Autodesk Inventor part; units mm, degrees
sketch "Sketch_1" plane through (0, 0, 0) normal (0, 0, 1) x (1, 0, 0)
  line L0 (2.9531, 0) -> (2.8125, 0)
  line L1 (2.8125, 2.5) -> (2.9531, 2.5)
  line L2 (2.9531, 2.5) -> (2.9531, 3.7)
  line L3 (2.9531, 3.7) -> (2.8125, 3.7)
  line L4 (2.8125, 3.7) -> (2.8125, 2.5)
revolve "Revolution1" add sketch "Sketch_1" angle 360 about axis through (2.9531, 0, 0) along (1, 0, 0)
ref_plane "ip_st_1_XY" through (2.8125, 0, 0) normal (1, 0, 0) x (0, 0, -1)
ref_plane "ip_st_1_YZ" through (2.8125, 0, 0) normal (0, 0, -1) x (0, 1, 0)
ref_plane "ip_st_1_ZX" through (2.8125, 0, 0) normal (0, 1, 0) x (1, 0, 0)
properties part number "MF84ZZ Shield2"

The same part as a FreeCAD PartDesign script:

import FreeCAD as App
import Part
import Sketcher
Q = App.Units.Quantity

doc = App.newDocument("Part")
params = doc.addObject("Spreadsheet::Sheet", "Params")
for row, (alias, value) in enumerate([
    ("sketch1_height", "1.2 mm"),
    ("revolution_angle", "360 deg"),
], start=1):
    params.set(f"A{row}", alias)
    params.set(f"B{row}", "=" + value)
    params.setAlias(f"B{row}", alias)

body = doc.addObject("PartDesign::Body", "Body")

sketch1 = body.newObject("Sketcher::SketchObject", "Sketch")
sketch1.AttachmentSupport = (doc.getObject("XY_Plane"), [""])
sketch1.MapMode = "FlatFace"
sketch1.addGeometry(Part.LineSegment(App.Vector(2.81, 3.7, 0), App.Vector(2.81, 2.5, 0)), False)
sketch1.addGeometry(Part.LineSegment(App.Vector(2.81, 2.5, 0), App.Vector(2.95, 2.5, 0)), False)
sketch1.addGeometry(Part.LineSegment(App.Vector(2.95, 2.5, 0), App.Vector(2.95, 3.7, 0)), False)
sketch1.addGeometry(Part.LineSegment(App.Vector(2.95, 3.7, 0), App.Vector(2.81, 3.7, 0)), False)
sketch1.addConstraint(Sketcher.Constraint("Coincident", 0, 2, 1, 1))
sketch1.addConstraint(Sketcher.Constraint("Coincident", 1, 2, 2, 1))
sketch1.addConstraint(Sketcher.Constraint("Coincident", 2, 2, 3, 1))
sketch1.addConstraint(Sketcher.Constraint("Coincident", 3, 2, 0, 1))
sketch1.addConstraint(Sketcher.Constraint("Vertical", 0))
sketch1.addConstraint(Sketcher.Constraint("Horizontal", 1))
sketch1.addConstraint(Sketcher.Constraint("Vertical", 2))
sketch1.addConstraint(Sketcher.Constraint("Horizontal", 3))
sketch1.addConstraint(Sketcher.Constraint("DistanceY", 0, 2, 0, 1, Q("1.2 mm")))
sketch1.addConstraint(Sketcher.Constraint("DistanceY", -1, 1, 0, 2, Q("2.5 mm")))
sketch1.addConstraint(Sketcher.Constraint("DistanceX", 1, 1, 1, 2, Q("0.1406 mm")))
sketch1.addConstraint(Sketcher.Constraint("DistanceX", -1, 1, 1, 2, Q("2.953 mm")))
sketch1.setExpression("Constraints[8]", "Params.sketch1_height")
revolution = body.newObject("PartDesign::Revolution", "Revolution")
revolution.Profile = sketch1
revolution.ReferenceAxis = (sketch1, ["H_Axis"])
revolution.setExpression("Angle", "Params.revolution_angle")

doc.recompute()
